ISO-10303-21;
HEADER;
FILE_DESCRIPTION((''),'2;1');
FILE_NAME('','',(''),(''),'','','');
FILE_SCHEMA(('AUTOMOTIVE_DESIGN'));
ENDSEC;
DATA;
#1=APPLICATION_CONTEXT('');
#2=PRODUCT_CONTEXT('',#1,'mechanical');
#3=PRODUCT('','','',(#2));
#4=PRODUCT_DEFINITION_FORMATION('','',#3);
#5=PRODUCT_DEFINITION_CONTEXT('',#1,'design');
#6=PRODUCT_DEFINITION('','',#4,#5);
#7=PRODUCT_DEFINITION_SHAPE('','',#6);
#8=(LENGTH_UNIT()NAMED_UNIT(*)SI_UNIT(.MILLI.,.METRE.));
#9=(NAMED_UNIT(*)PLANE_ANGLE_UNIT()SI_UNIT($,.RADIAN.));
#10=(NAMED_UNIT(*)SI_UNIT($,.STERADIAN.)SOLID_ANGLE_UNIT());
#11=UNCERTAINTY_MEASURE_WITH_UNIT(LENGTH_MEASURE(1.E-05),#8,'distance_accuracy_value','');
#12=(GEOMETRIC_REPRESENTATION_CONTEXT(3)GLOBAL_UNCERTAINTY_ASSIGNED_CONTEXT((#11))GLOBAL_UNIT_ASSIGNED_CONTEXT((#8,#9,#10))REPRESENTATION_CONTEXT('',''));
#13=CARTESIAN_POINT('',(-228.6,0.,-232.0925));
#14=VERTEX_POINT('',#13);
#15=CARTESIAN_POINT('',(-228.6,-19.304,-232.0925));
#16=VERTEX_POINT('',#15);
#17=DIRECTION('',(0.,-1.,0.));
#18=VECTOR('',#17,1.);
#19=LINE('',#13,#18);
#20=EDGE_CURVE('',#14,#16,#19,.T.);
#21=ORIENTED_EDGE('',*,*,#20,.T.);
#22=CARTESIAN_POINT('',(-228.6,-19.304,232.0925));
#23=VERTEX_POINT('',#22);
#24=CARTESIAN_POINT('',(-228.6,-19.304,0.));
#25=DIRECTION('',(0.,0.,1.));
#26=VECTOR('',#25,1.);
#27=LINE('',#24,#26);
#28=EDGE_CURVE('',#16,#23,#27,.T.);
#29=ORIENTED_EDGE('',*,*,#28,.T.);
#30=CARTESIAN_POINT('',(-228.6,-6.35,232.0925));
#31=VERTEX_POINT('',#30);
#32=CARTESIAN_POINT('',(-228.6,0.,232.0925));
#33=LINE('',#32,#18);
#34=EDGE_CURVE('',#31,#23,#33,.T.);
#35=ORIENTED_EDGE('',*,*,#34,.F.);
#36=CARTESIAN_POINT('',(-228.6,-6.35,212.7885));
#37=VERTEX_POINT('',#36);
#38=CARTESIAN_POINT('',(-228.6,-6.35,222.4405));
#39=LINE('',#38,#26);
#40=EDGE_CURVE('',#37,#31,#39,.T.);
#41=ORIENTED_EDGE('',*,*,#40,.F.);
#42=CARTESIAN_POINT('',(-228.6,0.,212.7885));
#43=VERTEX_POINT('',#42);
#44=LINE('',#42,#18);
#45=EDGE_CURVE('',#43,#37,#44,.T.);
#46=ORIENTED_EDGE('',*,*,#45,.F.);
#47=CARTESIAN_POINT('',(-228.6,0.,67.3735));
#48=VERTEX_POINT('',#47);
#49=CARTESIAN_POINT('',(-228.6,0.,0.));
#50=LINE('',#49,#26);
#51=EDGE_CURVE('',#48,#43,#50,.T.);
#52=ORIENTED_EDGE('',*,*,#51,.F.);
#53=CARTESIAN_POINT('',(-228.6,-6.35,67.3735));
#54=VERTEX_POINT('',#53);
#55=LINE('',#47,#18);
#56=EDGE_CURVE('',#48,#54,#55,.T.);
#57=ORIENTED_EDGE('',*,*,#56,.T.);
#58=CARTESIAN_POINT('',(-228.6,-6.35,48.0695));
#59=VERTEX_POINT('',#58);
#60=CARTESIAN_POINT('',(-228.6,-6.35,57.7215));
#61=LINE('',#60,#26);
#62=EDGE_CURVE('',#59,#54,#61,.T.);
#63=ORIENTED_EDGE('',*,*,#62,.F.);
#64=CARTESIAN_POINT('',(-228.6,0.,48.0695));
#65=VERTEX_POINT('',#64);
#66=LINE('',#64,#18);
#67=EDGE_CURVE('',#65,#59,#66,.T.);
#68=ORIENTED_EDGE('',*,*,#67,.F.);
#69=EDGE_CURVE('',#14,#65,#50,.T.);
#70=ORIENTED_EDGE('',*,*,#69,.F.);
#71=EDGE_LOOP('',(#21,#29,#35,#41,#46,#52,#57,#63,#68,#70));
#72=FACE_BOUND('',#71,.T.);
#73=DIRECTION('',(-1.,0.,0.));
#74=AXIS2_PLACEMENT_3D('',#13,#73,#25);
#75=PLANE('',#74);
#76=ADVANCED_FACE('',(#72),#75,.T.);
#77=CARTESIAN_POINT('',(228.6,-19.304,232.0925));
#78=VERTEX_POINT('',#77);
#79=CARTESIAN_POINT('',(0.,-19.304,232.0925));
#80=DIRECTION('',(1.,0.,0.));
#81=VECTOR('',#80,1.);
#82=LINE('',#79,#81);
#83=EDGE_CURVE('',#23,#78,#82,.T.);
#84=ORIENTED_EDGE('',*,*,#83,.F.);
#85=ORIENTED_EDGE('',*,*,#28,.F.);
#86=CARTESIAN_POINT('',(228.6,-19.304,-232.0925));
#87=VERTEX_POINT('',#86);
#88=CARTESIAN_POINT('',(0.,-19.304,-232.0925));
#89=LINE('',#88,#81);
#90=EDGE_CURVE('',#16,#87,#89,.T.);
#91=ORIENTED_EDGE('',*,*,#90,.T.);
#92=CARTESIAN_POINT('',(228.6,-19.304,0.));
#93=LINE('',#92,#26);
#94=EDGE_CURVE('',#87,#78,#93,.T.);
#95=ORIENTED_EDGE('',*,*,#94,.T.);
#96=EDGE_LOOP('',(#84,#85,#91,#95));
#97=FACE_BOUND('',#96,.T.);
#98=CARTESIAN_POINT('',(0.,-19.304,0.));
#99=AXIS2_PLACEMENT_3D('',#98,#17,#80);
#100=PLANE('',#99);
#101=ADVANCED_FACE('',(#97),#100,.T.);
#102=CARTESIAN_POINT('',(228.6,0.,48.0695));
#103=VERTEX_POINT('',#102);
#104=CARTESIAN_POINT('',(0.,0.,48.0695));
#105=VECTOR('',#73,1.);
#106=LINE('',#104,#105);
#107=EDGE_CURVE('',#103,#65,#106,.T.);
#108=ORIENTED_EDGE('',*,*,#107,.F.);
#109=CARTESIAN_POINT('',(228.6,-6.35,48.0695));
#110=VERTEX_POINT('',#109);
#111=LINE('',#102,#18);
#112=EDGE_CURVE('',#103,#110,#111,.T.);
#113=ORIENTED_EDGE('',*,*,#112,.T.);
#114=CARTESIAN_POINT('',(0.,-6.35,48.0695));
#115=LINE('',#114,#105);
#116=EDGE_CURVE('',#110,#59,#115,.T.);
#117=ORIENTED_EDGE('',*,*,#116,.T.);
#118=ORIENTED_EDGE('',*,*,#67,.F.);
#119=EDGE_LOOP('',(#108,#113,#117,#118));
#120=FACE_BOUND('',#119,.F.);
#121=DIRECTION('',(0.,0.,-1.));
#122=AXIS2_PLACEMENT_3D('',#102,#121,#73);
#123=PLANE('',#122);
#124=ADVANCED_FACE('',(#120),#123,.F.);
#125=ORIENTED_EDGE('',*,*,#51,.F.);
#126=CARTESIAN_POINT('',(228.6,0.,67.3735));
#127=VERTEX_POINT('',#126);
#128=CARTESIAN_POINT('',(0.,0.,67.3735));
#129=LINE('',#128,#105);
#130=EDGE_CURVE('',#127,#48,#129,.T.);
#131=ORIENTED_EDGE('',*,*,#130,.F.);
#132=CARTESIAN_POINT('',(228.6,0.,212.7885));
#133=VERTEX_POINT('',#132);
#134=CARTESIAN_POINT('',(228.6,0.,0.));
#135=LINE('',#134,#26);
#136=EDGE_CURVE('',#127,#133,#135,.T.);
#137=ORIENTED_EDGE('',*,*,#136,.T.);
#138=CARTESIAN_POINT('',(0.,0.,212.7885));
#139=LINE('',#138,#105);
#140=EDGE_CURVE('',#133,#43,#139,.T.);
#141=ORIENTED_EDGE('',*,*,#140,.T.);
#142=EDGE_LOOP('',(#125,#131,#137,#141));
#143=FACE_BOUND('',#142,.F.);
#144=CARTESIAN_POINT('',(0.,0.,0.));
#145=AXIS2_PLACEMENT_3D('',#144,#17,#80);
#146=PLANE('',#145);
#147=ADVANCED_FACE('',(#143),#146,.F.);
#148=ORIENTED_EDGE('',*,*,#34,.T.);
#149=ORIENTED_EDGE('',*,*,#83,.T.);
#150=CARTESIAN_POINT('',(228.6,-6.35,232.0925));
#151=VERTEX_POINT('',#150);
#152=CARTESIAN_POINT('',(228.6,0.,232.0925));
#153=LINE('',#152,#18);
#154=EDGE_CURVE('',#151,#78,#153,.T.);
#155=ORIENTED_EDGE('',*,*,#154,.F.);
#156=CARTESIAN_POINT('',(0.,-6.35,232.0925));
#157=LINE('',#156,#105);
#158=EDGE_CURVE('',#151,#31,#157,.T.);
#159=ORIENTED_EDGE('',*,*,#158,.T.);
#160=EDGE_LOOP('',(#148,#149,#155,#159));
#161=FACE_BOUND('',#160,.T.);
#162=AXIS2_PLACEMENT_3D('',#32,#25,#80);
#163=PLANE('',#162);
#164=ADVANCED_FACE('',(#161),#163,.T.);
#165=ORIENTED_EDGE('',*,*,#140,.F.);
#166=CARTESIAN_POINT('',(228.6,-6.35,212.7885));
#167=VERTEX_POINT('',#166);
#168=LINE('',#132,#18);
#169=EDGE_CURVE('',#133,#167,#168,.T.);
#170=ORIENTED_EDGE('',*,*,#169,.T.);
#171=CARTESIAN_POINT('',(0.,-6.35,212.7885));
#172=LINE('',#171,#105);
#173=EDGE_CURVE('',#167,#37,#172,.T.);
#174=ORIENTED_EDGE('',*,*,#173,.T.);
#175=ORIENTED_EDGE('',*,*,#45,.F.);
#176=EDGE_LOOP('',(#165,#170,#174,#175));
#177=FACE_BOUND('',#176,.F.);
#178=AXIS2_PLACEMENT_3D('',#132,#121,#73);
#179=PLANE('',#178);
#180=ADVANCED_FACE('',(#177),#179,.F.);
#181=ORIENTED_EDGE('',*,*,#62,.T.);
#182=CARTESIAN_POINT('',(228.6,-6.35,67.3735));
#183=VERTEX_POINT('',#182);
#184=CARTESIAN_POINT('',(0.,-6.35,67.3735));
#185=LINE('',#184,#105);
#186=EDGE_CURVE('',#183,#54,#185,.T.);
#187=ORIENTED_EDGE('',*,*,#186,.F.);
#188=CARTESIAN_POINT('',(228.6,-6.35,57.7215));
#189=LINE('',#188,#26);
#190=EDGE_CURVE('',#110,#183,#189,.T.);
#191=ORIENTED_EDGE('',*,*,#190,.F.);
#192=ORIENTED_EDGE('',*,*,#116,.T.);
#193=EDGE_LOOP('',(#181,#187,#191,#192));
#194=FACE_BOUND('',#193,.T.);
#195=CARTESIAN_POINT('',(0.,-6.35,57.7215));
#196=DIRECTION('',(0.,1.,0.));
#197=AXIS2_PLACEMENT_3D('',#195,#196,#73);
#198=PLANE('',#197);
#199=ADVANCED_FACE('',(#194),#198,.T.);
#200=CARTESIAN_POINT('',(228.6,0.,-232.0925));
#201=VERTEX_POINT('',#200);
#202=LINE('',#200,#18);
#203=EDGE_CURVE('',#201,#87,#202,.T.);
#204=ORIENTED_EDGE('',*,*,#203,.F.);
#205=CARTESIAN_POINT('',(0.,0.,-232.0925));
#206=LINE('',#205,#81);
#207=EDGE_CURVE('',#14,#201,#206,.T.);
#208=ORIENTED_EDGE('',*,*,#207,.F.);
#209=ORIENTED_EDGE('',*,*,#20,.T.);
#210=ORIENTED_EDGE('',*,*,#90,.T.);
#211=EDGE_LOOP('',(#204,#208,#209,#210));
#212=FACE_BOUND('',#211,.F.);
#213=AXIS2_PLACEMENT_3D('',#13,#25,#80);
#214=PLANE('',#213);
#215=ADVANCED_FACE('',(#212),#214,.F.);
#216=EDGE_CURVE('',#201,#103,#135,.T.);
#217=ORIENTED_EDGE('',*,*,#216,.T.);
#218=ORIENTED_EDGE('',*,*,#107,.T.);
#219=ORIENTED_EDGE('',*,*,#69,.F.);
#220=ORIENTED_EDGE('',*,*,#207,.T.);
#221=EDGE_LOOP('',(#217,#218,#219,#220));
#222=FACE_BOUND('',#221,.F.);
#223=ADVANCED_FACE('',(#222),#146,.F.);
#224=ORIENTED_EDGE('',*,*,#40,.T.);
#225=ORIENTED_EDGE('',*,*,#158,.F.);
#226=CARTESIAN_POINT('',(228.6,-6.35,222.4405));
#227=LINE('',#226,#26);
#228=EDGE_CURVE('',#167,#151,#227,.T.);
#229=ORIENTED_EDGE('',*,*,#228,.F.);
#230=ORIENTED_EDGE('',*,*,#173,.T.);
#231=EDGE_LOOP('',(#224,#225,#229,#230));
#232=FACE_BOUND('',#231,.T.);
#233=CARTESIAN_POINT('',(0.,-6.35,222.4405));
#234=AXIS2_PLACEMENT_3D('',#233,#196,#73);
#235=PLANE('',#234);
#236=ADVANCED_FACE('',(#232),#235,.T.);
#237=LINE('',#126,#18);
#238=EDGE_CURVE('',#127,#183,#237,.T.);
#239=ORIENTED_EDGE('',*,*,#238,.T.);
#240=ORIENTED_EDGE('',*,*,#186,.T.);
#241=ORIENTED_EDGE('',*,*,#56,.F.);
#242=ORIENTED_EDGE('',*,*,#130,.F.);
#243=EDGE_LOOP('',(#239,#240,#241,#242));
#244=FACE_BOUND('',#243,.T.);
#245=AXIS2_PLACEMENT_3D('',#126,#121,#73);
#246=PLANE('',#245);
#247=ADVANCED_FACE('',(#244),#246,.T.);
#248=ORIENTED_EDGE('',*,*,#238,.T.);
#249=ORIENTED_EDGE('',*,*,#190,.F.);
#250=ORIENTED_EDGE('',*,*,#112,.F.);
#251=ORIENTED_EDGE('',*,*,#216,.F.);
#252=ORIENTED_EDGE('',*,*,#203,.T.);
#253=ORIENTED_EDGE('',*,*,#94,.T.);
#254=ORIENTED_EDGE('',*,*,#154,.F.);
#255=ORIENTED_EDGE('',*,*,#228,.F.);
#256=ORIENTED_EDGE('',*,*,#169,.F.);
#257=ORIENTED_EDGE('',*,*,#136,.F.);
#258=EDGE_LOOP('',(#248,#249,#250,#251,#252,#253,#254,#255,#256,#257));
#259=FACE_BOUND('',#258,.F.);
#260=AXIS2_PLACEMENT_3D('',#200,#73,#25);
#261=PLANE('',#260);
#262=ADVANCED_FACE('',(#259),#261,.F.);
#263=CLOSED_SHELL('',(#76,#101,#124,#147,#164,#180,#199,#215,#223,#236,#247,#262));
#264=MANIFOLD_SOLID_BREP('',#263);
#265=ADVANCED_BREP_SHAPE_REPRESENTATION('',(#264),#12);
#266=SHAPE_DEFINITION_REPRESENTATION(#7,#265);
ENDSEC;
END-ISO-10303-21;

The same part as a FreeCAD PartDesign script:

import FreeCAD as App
import Part
import Sketcher
Q = App.Units.Quantity

doc = App.newDocument("Part")
params = doc.addObject("Spreadsheet::Sheet", "Params")
for row, (alias, value) in enumerate([
    ("sketch1_width", "18 in"),
    ("sketch1_height", "18.275 in"),
    ("pad1_length", "0.76 in"),
    ("sketch2_width", "18 in"),
    ("sketch2_height", "0.76 in"),
    ("pocket1_length", "0.25 in"),
], start=1):
    params.set(f"A{row}", alias)
    params.set(f"B{row}", "=" + value)
    params.setAlias(f"B{row}", alias)

body = doc.addObject("PartDesign::Body", "Body")

# Sketch on XZ plane
sketch1 = body.newObject("Sketcher::SketchObject", "Sketch")
sketch1.AttachmentSupport = (doc.getObject("XZ_Plane"), [""])
sketch1.MapMode = "FlatFace"
sketch1.addGeometry(Part.LineSegment(App.Vector(-229, 232, 0), App.Vector(-229, -232, 0)), False)
sketch1.addGeometry(Part.LineSegment(App.Vector(-229, -232, 0), App.Vector(229, -232, 0)), False)
sketch1.addGeometry(Part.LineSegment(App.Vector(229, -232, 0), App.Vector(229, 232, 0)), False)
sketch1.addGeometry(Part.LineSegment(App.Vector(229, 232, 0), App.Vector(-229, 232, 0)), False)
sketch1.addConstraint(Sketcher.Constraint("Coincident", 0, 2, 1, 1))
sketch1.addConstraint(Sketcher.Constraint("Coincident", 1, 2, 2, 1))
sketch1.addConstraint(Sketcher.Constraint("Coincident", 2, 2, 3, 1))
sketch1.addConstraint(Sketcher.Constraint("Coincident", 3, 2, 0, 1))
sketch1.addConstraint(Sketcher.Constraint("Vertical", 0))
sketch1.addConstraint(Sketcher.Constraint("Horizontal", 1))
sketch1.addConstraint(Sketcher.Constraint("Vertical", 2))
sketch1.addConstraint(Sketcher.Constraint("Horizontal", 3))
sketch1.addConstraint(Sketcher.Constraint("Symmetric", 0, 2, 2, 2, -1, 1))
sketch1.addConstraint(Sketcher.Constraint("DistanceX", 1, 1, 1, 2, Q("18 in")))
sketch1.addConstraint(Sketcher.Constraint("DistanceY", 0, 2, 0, 1, Q("18.275 in")))
sketch1.setExpression("Constraints[9]", "Params.sketch1_width")
sketch1.setExpression("Constraints[10]", "Params.sketch1_height")
pad1 = body.newObject("PartDesign::Pad", "Pad")
pad1.Profile = sketch1
pad1.setExpression("Length", "Params.pad1_length")

# Sketch on XZ plane
sketch2 = body.newObject("Sketcher::SketchObject", "Sketch001")
sketch2.AttachmentSupport = (doc.getObject("XZ_Plane"), [""])
sketch2.MapMode = "FlatFace"
sketch2.addGeometry(Part.LineSegment(App.Vector(229, 232, 0), App.Vector(229, 213, 0)), False)
sketch2.addGeometry(Part.LineSegment(App.Vector(229, 213, 0), App.Vector(-229, 213, 0)), False)
sketch2.addGeometry(Part.LineSegment(App.Vector(-229, 213, 0), App.Vector(-229, 232, 0)), False)
sketch2.addGeometry(Part.LineSegment(App.Vector(-229, 232, 0), App.Vector(229, 232, 0)), False)
sketch2.addGeometry(Part.LineSegment(App.Vector(229, 67, 0), App.Vector(229, 48, 0)), False)
sketch2.addGeometry(Part.LineSegment(App.Vector(229, 48, 0), App.Vector(-229, 48, 0)), False)
sketch2.addGeometry(Part.LineSegment(App.Vector(-229, 48, 0), App.Vector(-229, 67, 0)), False)
sketch2.addGeometry(Part.LineSegment(App.Vector(-229, 67, 0), App.Vector(229, 67, 0)), False)
sketch2.addConstraint(Sketcher.Constraint("Coincident", 0, 2, 1, 1))
sketch2.addConstraint(Sketcher.Constraint("Coincident", 1, 2, 2, 1))
sketch2.addConstraint(Sketcher.Constraint("Coincident", 2, 2, 3, 1))
sketch2.addConstraint(Sketcher.Constraint("Coincident", 3, 2, 0, 1))
sketch2.addConstraint(Sketcher.Constraint("Coincident", 4, 2, 5, 1))
sketch2.addConstraint(Sketcher.Constraint("Coincident", 5, 2, 6, 1))
sketch2.addConstraint(Sketcher.Constraint("Coincident", 6, 2, 7, 1))
sketch2.addConstraint(Sketcher.Constraint("Coincident", 7, 2, 4, 1))
sketch2.addConstraint(Sketcher.Constraint("Vertical", 0))
sketch2.addConstraint(Sketcher.Constraint("Horizontal", 1))
sketch2.addConstraint(Sketcher.Constraint("Vertical", 2))
sketch2.addConstraint(Sketcher.Constraint("Horizontal", 3))
sketch2.addConstraint(Sketcher.Constraint("Vertical", 4))
sketch2.addConstraint(Sketcher.Constraint("Horizontal", 5))
sketch2.addConstraint(Sketcher.Constraint("Vertical", 6))
sketch2.addConstraint(Sketcher.Constraint("Horizontal", 7))
sketch2.addConstraint(Sketcher.Constraint("Vertical", 3, 2, 4, 2))
sketch2.addConstraint(Sketcher.Constraint("Vertical", 2, 2, 5, 2))
sketch2.addConstraint(Sketcher.Constraint("Equal", 2, 4))
sketch2.addConstraint(Sketcher.Constraint("DistanceX", 1, 2, 1, 1, Q("18 in")))
sketch2.addConstraint(Sketcher.Constraint("DistanceX", -1, 1, 0, 2, Q("9 in")))
sketch2.addConstraint(Sketcher.Constraint("DistanceY", 0, 2, 0, 1, Q("0.76 in")))
sketch2.addConstraint(Sketcher.Constraint("DistanceY", 4, 2, 0, 2, Q("6.485 in")))
sketch2.addConstraint(Sketcher.Constraint("DistanceY", -1, 1, 0, 2, Q("8.3775 in")))
sketch2.setExpression("Constraints[19]", "Params.sketch2_width")
sketch2.setExpression("Constraints[21]", "Params.sketch2_height")
pocket1 = body.newObject("PartDesign::Pocket", "Pocket")
pocket1.Profile = sketch2
pocket1.setExpression("Length", "Params.pocket1_length")
pocket1.Reversed = True

doc.recompute()
